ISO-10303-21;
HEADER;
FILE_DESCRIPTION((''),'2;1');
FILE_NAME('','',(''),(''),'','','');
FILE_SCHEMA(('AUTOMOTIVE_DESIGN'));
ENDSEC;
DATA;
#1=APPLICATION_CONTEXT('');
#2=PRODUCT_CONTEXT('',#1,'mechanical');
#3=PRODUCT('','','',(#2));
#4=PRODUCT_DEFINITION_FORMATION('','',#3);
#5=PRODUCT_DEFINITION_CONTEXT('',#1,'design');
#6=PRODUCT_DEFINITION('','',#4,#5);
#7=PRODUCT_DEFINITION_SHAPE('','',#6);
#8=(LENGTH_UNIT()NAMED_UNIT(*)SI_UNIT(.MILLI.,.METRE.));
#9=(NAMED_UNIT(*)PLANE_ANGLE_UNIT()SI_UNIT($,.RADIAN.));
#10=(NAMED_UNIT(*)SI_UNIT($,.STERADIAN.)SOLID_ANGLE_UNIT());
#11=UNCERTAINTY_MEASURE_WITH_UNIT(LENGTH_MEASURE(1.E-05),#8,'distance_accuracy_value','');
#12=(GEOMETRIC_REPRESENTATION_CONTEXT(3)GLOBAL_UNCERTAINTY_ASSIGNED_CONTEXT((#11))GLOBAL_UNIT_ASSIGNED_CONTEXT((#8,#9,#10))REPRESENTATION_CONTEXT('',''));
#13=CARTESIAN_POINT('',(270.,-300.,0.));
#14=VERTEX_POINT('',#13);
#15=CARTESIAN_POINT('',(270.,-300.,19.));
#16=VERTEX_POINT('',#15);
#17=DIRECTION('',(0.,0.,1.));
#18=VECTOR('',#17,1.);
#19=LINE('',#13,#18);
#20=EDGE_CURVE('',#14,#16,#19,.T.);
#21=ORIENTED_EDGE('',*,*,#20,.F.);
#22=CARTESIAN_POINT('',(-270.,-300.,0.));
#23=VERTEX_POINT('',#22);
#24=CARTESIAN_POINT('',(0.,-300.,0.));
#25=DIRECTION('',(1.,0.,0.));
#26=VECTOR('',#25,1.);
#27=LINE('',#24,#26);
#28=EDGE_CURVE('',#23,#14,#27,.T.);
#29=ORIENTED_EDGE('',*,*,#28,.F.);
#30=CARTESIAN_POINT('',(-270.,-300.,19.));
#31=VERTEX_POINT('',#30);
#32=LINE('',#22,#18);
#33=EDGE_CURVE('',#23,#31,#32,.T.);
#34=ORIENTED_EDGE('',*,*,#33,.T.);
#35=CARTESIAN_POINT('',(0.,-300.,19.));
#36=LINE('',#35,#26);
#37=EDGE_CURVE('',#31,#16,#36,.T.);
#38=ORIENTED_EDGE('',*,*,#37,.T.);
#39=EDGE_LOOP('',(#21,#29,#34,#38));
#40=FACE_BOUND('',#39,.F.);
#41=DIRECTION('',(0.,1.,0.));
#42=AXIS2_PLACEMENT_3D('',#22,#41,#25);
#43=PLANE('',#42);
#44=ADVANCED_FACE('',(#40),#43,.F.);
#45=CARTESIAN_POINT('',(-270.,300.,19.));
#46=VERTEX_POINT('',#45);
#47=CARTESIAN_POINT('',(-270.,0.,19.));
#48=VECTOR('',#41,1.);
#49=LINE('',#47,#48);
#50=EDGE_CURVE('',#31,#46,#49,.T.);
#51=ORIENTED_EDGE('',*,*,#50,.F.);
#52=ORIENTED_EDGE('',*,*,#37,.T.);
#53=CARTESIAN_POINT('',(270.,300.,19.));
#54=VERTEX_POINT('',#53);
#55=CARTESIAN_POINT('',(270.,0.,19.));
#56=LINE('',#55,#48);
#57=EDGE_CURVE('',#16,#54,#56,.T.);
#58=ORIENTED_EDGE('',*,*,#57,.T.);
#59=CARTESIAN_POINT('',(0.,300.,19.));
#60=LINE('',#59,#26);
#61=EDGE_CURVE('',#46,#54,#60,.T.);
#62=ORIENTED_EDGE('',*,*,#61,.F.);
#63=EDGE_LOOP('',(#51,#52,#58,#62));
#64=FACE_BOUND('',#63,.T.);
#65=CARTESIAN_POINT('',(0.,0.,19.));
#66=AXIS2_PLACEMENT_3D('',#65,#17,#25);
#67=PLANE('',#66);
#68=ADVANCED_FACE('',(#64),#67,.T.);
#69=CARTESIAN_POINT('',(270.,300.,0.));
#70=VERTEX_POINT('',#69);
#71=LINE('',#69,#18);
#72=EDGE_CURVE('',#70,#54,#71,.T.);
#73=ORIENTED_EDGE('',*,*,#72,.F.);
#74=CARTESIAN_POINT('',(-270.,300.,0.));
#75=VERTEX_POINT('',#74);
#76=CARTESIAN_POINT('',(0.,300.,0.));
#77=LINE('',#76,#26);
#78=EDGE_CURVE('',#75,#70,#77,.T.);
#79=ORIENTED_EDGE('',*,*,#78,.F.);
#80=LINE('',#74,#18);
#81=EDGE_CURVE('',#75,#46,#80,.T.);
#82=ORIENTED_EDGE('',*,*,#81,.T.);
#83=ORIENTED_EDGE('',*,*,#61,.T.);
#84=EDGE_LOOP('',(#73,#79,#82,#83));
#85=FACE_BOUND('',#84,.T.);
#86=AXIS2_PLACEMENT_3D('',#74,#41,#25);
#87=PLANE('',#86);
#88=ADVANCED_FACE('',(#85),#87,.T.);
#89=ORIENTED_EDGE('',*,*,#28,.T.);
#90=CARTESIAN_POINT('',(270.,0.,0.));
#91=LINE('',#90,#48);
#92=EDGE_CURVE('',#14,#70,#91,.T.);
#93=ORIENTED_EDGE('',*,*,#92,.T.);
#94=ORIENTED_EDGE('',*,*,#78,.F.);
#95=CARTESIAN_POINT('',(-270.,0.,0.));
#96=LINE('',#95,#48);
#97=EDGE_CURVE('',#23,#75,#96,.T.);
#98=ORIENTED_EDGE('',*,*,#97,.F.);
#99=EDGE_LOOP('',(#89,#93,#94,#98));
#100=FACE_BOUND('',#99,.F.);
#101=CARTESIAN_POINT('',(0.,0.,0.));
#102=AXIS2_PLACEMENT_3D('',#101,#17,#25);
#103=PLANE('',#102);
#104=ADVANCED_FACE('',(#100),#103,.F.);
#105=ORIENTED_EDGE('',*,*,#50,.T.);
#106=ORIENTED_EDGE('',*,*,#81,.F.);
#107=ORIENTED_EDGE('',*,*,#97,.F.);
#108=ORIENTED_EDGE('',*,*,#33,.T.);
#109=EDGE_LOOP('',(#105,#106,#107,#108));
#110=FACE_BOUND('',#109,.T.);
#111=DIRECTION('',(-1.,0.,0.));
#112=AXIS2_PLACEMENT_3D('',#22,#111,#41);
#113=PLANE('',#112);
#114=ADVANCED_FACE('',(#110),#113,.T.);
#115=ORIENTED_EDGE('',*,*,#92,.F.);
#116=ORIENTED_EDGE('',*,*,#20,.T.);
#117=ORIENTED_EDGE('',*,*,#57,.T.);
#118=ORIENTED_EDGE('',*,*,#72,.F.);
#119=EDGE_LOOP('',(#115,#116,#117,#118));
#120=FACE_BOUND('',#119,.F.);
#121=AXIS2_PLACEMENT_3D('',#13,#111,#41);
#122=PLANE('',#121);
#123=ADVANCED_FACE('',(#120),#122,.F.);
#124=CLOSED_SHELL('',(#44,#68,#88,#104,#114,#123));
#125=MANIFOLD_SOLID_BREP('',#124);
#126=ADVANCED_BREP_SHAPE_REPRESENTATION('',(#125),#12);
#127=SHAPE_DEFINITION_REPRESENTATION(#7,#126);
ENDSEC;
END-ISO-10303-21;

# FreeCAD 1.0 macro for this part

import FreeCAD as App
import Part
import Sketcher
from FreeCAD import Vector

doc = App.newDocument("Part")
body = doc.addObject("PartDesign::Body", "Body")

# Sketch on XY plane
sketch1 = body.newObject("Sketcher::SketchObject", "Sketch")
sketch1.AttachmentSupport = (doc.getObject("XY_Plane"), [""])
sketch1.MapMode = "FlatFace"
sketch1.addGeometry([
    Part.LineSegment(Vector(-270, 300, 0), Vector(-270, -300, 0)),
    Part.LineSegment(Vector(-270, -300, 0), Vector(270, -300, 0)),
    Part.LineSegment(Vector(270, -300, 0), Vector(270, 300, 0)),
    Part.LineSegment(Vector(270, 300, 0), Vector(-270, 300, 0)),
], False)
sketch1.addConstraint([
    Sketcher.Constraint("Coincident", 0, 2, 1, 1),
    Sketcher.Constraint("Coincident", 1, 2, 2, 1),
    Sketcher.Constraint("Coincident", 2, 2, 3, 1),
    Sketcher.Constraint("Coincident", 3, 2, 0, 1),
    Sketcher.Constraint("Vertical", 0),
    Sketcher.Constraint("Horizontal", 1),
    Sketcher.Constraint("Vertical", 2),
    Sketcher.Constraint("Horizontal", 3),
    Sketcher.Constraint("Symmetric", 0, 2, 2, 2, -1, 1),
    Sketcher.Constraint("DistanceX", 1, 1, 1, 2, 540.0),
    Sketcher.Constraint("DistanceY", 0, 2, 0, 1, 600.0),
])
pad1 = body.newObject("PartDesign::Pad", "Pad")
pad1.Profile = sketch1
pad1.Length = 19

doc.recompute()
